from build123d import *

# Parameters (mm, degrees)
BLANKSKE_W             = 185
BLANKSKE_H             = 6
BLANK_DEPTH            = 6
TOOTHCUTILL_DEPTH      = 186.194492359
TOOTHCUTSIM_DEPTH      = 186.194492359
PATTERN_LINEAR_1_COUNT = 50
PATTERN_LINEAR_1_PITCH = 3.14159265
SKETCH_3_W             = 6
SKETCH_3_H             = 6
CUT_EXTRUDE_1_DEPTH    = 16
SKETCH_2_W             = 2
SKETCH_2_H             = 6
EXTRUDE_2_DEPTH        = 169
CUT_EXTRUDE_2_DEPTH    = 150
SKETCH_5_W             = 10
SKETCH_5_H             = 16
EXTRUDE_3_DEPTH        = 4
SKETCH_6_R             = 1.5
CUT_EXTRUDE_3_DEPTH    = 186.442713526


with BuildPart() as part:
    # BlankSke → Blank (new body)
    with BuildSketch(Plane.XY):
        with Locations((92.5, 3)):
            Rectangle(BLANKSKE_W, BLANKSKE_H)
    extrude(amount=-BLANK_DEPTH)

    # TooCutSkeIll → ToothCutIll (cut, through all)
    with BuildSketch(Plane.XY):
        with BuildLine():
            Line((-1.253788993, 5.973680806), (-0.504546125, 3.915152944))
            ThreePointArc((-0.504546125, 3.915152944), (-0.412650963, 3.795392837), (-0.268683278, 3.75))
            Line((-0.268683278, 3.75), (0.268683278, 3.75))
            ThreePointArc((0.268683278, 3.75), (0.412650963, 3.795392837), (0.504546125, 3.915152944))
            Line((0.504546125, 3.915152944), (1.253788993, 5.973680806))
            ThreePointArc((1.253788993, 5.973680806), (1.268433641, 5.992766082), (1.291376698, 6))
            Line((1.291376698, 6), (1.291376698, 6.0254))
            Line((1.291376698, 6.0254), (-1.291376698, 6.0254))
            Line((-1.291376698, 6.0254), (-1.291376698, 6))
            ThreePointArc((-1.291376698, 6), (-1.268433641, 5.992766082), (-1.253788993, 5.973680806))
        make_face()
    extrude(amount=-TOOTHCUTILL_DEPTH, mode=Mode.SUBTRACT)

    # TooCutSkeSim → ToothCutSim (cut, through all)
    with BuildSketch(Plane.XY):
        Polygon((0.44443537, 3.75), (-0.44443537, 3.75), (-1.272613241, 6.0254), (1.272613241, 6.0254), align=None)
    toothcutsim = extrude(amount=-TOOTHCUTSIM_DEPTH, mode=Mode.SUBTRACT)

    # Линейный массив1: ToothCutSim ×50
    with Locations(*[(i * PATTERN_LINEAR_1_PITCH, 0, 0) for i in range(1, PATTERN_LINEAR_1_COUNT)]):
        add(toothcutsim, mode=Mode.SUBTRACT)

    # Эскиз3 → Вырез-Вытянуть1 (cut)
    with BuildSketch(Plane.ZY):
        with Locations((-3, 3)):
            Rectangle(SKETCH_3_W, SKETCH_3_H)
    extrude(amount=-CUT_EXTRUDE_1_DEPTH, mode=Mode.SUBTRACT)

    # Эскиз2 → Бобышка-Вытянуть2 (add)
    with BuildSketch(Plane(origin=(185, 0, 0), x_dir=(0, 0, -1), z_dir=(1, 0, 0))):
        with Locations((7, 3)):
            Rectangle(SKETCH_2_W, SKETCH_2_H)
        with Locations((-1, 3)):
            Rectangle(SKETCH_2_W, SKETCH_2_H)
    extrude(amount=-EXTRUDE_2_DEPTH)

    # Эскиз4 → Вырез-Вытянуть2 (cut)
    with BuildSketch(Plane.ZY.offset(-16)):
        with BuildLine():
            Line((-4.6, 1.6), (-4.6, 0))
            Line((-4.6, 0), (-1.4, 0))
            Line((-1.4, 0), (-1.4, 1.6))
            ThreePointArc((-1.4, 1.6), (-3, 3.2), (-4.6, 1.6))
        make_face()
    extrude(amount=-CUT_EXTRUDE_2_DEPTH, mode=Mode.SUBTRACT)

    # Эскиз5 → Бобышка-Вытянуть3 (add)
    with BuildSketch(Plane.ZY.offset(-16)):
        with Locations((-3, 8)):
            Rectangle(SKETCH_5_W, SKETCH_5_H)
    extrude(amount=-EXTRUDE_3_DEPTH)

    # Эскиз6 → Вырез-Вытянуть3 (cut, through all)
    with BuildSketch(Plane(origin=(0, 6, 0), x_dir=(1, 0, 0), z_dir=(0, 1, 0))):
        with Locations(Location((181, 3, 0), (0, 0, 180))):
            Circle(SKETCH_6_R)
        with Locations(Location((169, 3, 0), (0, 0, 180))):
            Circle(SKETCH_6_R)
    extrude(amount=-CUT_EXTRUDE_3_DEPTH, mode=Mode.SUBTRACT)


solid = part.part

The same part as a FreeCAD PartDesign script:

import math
import FreeCAD as App
import Part
import Sketcher
from FreeCAD import Vector
Q = App.Units.Quantity

doc = App.newDocument("Part")
body = doc.addObject("PartDesign::Body", "Body")

sketch1 = doc.addObject("Sketcher::SketchObject", "Sketch")
body.addObject(sketch1)
sketch1.AttachmentSupport = (doc.XY_Plane, [""])
sketch1.MapMode = "FlatFace"
sketch1.addGeometry(Part.LineSegment(Vector(0, 6, 0), Vector(0, 0, 0)), False)
sketch1.addGeometry(Part.LineSegment(Vector(0, 0, 0), Vector(185, 0, 0)), False)
sketch1.addGeometry(Part.LineSegment(Vector(185, 0, 0), Vector(185, 6, 0)), False)
sketch1.addGeometry(Part.LineSegment(Vector(185, 6, 0), Vector(0, 6, 0)), False)
sketch1.addConstraint(Sketcher.Constraint("Coincident", 0, 2, 1, 1))
sketch1.addConstraint(Sketcher.Constraint("Coincident", 1, 2, 2, 1))
sketch1.addConstraint(Sketcher.Constraint("Coincident", 2, 2, 3, 1))
sketch1.addConstraint(Sketcher.Constraint("Coincident", 3, 2, 0, 1))
sketch1.addConstraint(Sketcher.Constraint("Vertical", 0))
sketch1.addConstraint(Sketcher.Constraint("Horizontal", 1))
sketch1.addConstraint(Sketcher.Constraint("Vertical", 2))
sketch1.addConstraint(Sketcher.Constraint("Horizontal", 3))
sketch1.addConstraint(Sketcher.Constraint("Coincident", 0, 2, -1, 1))
sketch1.addConstraint(Sketcher.Constraint("DistanceX", 1, 1, 1, 2, Q("185 mm")))
sketch1.addConstraint(Sketcher.Constraint("DistanceY", 0, 2, 0, 1, Q("6 mm")))
pad1 = doc.addObject("PartDesign::Pad", "Pad")
body.addObject(pad1)
pad1.Profile = sketch1
pad1.Length = 6
pad1.Reversed = True

sketch2 = doc.addObject("Sketcher::SketchObject", "Sketch001")
body.addObject(sketch2)
sketch2.AttachmentSupport = (doc.XY_Plane, [""])
sketch2.MapMode = "FlatFace"
sketch2.addGeometry(Part.LineSegment(Vector(-1.253789, 5.973681, 0), Vector(-0.504546, 3.915153, 0)), False)
sketch2.addGeometry(Part.ArcOfCircle(Part.Circle(Vector(-0.268683, 4.001, 0), Vector(0, 0, 1), 0.251), math.radians(-160), math.radians(-90)), False)
sketch2.addGeometry(Part.LineSegment(Vector(-0.268683, 3.75, 0), Vector(0.268683, 3.75, 0)), False)
sketch2.addGeometry(Part.ArcOfCircle(Part.Circle(Vector(0.268683, 4.001, 0), Vector(0, 0, 1), 0.251), math.radians(-90), math.radians(-20)), False)
sketch2.addGeometry(Part.LineSegment(Vector(0.504546, 3.915153, 0), Vector(1.253789, 5.973681, 0)), False)
sketch2.addGeometry(Part.ArcOfCircle(Part.Circle(Vector(1.291377, 5.96, 0), Vector(0, 0, 1), 0.04), math.radians(90), math.radians(159.999998)), False)
sketch2.addGeometry(Part.LineSegment(Vector(1.291377, 6, 0), Vector(1.291377, 6.0254, 0)), False)
sketch2.addGeometry(Part.LineSegment(Vector(1.291377, 6.0254, 0), Vector(-1.291377, 6.0254, 0)), False)
sketch2.addGeometry(Part.LineSegment(Vector(-1.291377, 6.0254, 0), Vector(-1.291377, 6, 0)), False)
sketch2.addGeometry(Part.ArcOfCircle(Part.Circle(Vector(-1.291377, 5.96, 0), Vector(0, 0, 1), 0.04), math.radians(20.000002), math.radians(90)), False)
sketch2.addConstraint(Sketcher.Constraint("Tangent", 0, 2, 1, 1))
sketch2.addConstraint(Sketcher.Constraint("Tangent", 1, 2, 2, 1))
sketch2.addConstraint(Sketcher.Constraint("Tangent", 2, 2, 3, 1))
sketch2.addConstraint(Sketcher.Constraint("Tangent", 3, 2, 4, 1))
sketch2.addConstraint(Sketcher.Constraint("Tangent", 4, 2, 5, 2))
sketch2.addConstraint(Sketcher.Constraint("Coincident", 5, 1, 6, 1))
sketch2.addConstraint(Sketcher.Constraint("Coincident", 6, 2, 7, 1))
sketch2.addConstraint(Sketcher.Constraint("Coincident", 7, 2, 8, 1))
sketch2.addConstraint(Sketcher.Constraint("Coincident", 8, 2, 9, 2))
sketch2.addConstraint(Sketcher.Constraint("Tangent", 9, 1, 0, 1))
sketch2.addConstraint(Sketcher.Constraint("Horizontal", 2))
sketch2.addConstraint(Sketcher.Constraint("Vertical", 6))
sketch2.addConstraint(Sketcher.Constraint("Horizontal", 7))
sketch2.addConstraint(Sketcher.Constraint("Vertical", 8))
sketch2.addConstraint(Sketcher.Constraint("Equal", 1, 3))
sketch2.addConstraint(Sketcher.Constraint("Equal", 5, 9))
sketch2.addConstraint(Sketcher.Constraint("Symmetric", 5, 3, 9, 3, -2))
sketch2.addConstraint(Sketcher.Constraint("Horizontal", 0, 2, 3, 2))
sketch2.addConstraint(Sketcher.Constraint("Vertical", 9, 3, 7, 2))
sketch2.addConstraint(Sketcher.Constraint("Angle", 0, Q("-70 deg")))
sketch2.addConstraint(Sketcher.Constraint("Radius", 5, Q("0.04 mm")))
sketch2.addConstraint(Sketcher.Constraint("DistanceY", -1, 1, 5, 1, Q("6 mm")))
sketch2.addConstraint(Sketcher.Constraint("Radius", 1, Q("0.251 mm")))
sketch2.addConstraint(Sketcher.Constraint("DistanceY", -1, 1, 1, 2, Q("3.75 mm")))
sketch2.addConstraint(Sketcher.Constraint("DistanceY", 6, 1, 6, 2, Q("0.0254 mm")))
sketch2.addConstraint(Sketcher.Constraint("DistanceX", 2, 1, 2, 2, Q("0.537367 mm")))
sketch2.addConstraint(Sketcher.Constraint("DistanceX", 7, 2, 7, 1, Q("2.582753 mm")))
pocket1 = doc.addObject("PartDesign::Pocket", "Pocket")
body.addObject(pocket1)
pocket1.Profile = sketch2
pocket1.Type = "ThroughAll"

sketch3 = doc.addObject("Sketcher::SketchObject", "Sketch002")
body.addObject(sketch3)
sketch3.AttachmentSupport = (doc.XY_Plane, [""])
sketch3.MapMode = "FlatFace"
sketch3.addGeometry(Part.LineSegment(Vector(-0.444435, 3.75, 0), Vector(0.444435, 3.75, 0)), False)
sketch3.addGeometry(Part.LineSegment(Vector(0.444435, 3.75, 0), Vector(1.272613, 6.0254, 0)), False)
sketch3.addGeometry(Part.LineSegment(Vector(1.272613, 6.0254, 0), Vector(-1.272613, 6.0254, 0)), False)
sketch3.addGeometry(Part.LineSegment(Vector(-1.272613, 6.0254, 0), Vector(-0.444435, 3.75, 0)), False)
sketch3.addConstraint(Sketcher.Constraint("Coincident", 0, 2, 1, 1))
sketch3.addConstraint(Sketcher.Constraint("Coincident", 1, 2, 2, 1))
sketch3.addConstraint(Sketcher.Constraint("Coincident", 2, 2, 3, 1))
sketch3.addConstraint(Sketcher.Constraint("Coincident", 3, 2, 0, 1))
sketch3.addConstraint(Sketcher.Constraint("Horizontal", 0))
sketch3.addConstraint(Sketcher.Constraint("Horizontal", 2))
sketch3.addConstraint(Sketcher.Constraint("Equal", 1, 3))
sketch3.addConstraint(Sketcher.Constraint("Angle", 1, Q("70 deg")))
sketch3.addConstraint(Sketcher.Constraint("DistanceY", -1, 1, 0, 2, Q("3.75 mm")))
sketch3.addConstraint(Sketcher.Constraint("DistanceX", 0, 1, 0, 2, Q("0.888871 mm")))
sketch3.addConstraint(Sketcher.Constraint("DistanceY", -1, 1, 1, 2, Q("6.0254 mm")))
sketch3.addConstraint(Sketcher.Constraint("DistanceX", -1, 1, 0, 2, Q("0.444435 mm")))
pocket2 = doc.addObject("PartDesign::Pocket", "Pocket001")
body.addObject(pocket2)
pocket2.Profile = sketch3
pocket2.Type = "ThroughAll"
doc.recompute()

linearpattern = doc.addObject("PartDesign::LinearPattern", "LinearPattern")
body.addObject(linearpattern)
linearpattern.Originals = [pocket2]
linearpattern.Direction = (doc.X_Axis, [""])
linearpattern.Mode = "offset"
linearpattern.Offset = 3.141593
linearpattern.Occurrences = 50
body.Tip = linearpattern

sketch4 = doc.addObject("Sketcher::SketchObject", "Sketch003")
body.addObject(sketch4)
sketch4.AttachmentSupport = (doc.YZ_Plane, [""])
sketch4.MapMode = "FlatFace"
sketch4.addGeometry(Part.LineSegment(Vector(6, -6, 0), Vector(0, -6, 0)), False)
sketch4.addGeometry(Part.LineSegment(Vector(0, -6, 0), Vector(0, 0, 0)), False)
sketch4.addGeometry(Part.LineSegment(Vector(0, 0, 0), Vector(6, 0, 0)), False)
sketch4.addGeometry(Part.LineSegment(Vector(6, 0, 0), Vector(6, -6, 0)), False)
sketch4.addConstraint(Sketcher.Constraint("Coincident", 0, 2, 1, 1))
sketch4.addConstraint(Sketcher.Constraint("Coincident", 1, 2, 2, 1))
sketch4.addConstraint(Sketcher.Constraint("Coincident", 2, 2, 3, 1))
sketch4.addConstraint(Sketcher.Constraint("Coincident", 3, 2, 0, 1))
sketch4.addConstraint(Sketcher.Constraint("Horizontal", 0))
sketch4.addConstraint(Sketcher.Constraint("Vertical", 1))
sketch4.addConstraint(Sketcher.Constraint("Horizontal", 2))
sketch4.addConstraint(Sketcher.Constraint("Vertical", 3))
sketch4.addConstraint(Sketcher.Constraint("Coincident", 1, 2, -1, 1))
sketch4.addConstraint(Sketcher.Constraint("Equal", 2, 1))
sketch4.addConstraint(Sketcher.Constraint("DistanceX", 0, 2, 0, 1, Q("6 mm")))
pocket3 = doc.addObject("PartDesign::Pocket", "Pocket002")
body.addObject(pocket3)
pocket3.Profile = sketch4
pocket3.Length = 16
pocket3.Reversed = True

sketch5 = doc.addObject("Sketcher::SketchObject", "Sketch004")
body.addObject(sketch5)
sketch5.AttachmentSupport = (doc.YZ_Plane, [""])
sketch5.MapMode = "FlatFace"
sketch5.AttachmentOffset = App.Placement(Vector(0, 0, 185), App.Rotation())
sketch5.addGeometry(Part.LineSegment(Vector(6, -6, 0), Vector(0, -6, 0)), False)
sketch5.addGeometry(Part.LineSegment(Vector(0, -6, 0), Vector(0, -8, 0)), False)
sketch5.addGeometry(Part.LineSegment(Vector(0, -8, 0), Vector(6, -8, 0)), False)
sketch5.addGeometry(Part.LineSegment(Vector(6, -8, 0), Vector(6, -6, 0)), False)
sketch5.addGeometry(Part.LineSegment(Vector(6, 2, 0), Vector(0, 2, 0)), False)
sketch5.addGeometry(Part.LineSegment(Vector(0, 2, 0), Vector(0, 0, 0)), False)
sketch5.addGeometry(Part.LineSegment(Vector(0, 0, 0), Vector(6, 0, 0)), False)
sketch5.addGeometry(Part.LineSegment(Vector(6, 0, 0), Vector(6, 2, 0)), False)
sketch5.addConstraint(Sketcher.Constraint("Coincident", 0, 2, 1, 1))
sketch5.addConstraint(Sketcher.Constraint("Coincident", 1, 2, 2, 1))
sketch5.addConstraint(Sketcher.Constraint("Coincident", 2, 2, 3, 1))
sketch5.addConstraint(Sketcher.Constraint("Coincident", 3, 2, 0, 1))
sketch5.addConstraint(Sketcher.Constraint("Coincident", 4, 2, 5, 1))
sketch5.addConstraint(Sketcher.Constraint("Coincident", 5, 2, 6, 1))
sketch5.addConstraint(Sketcher.Constraint("Coincident", 6, 2, 7, 1))
sketch5.addConstraint(Sketcher.Constraint("Coincident", 7, 2, 4, 1))
sketch5.addConstraint(Sketcher.Constraint("Horizontal", 0))
sketch5.addConstraint(Sketcher.Constraint("Vertical", 1))
sketch5.addConstraint(Sketcher.Constraint("Horizontal", 2))
sketch5.addConstraint(Sketcher.Constraint("Vertical", 3))
sketch5.addConstraint(Sketcher.Constraint("Horizontal", 4))
sketch5.addConstraint(Sketcher.Constraint("Vertical", 5))
sketch5.addConstraint(Sketcher.Constraint("Horizontal", 6))
sketch5.addConstraint(Sketcher.Constraint("Vertical", 7))
sketch5.addConstraint(Sketcher.Constraint("Coincident", 5, 2, -1, 1))
sketch5.addConstraint(Sketcher.Constraint("PointOnObject", 0, 2, -2))
sketch5.addConstraint(Sketcher.Constraint("Vertical", 3, 2, 6, 2))
sketch5.addConstraint(Sketcher.Constraint("Equal", 3, 5))
sketch5.addConstraint(Sketcher.Constraint("DistanceX", 0, 2, 0, 1, Q("6 mm")))
sketch5.addConstraint(Sketcher.Constraint("DistanceY", 1, 2, 1, 1, Q("2 mm")))
sketch5.addConstraint(Sketcher.Constraint("DistanceY", 0, 2, -1, 1, Q("6 mm")))
pad2 = doc.addObject("PartDesign::Pad", "Pad001")
body.addObject(pad2)
pad2.Profile = sketch5
pad2.Length = 169
pad2.Reversed = True

sketch6 = doc.addObject("Sketcher::SketchObject", "Sketch005")
body.addObject(sketch6)
sketch6.AttachmentSupport = (doc.YZ_Plane, [""])
sketch6.MapMode = "FlatFace"
sketch6.AttachmentOffset = App.Placement(Vector(0, 0, 16), App.Rotation())
sketch6.addGeometry(Part.LineSegment(Vector(1.6, -4.6, 0), Vector(0, -4.6, 0)), False)
sketch6.addGeometry(Part.LineSegment(Vector(0, -4.6, 0), Vector(0, -1.4, 0)), False)
sketch6.addGeometry(Part.LineSegment(Vector(0, -1.4, 0), Vector(1.6, -1.4, 0)), False)
sketch6.addGeometry(Part.ArcOfCircle(Part.Circle(Vector(1.6, -3, 0), Vector(0, 0, 1), 1.6), math.radians(-90), math.radians(90)), False)
sketch6.addConstraint(Sketcher.Constraint("Coincident", 0, 2, 1, 1))
sketch6.addConstraint(Sketcher.Constraint("Coincident", 1, 2, 2, 1))
sketch6.addConstraint(Sketcher.Constraint("Tangent", 2, 2, 3, 2))
sketch6.addConstraint(Sketcher.Constraint("Tangent", 3, 1, 0, 1))
sketch6.addConstraint(Sketcher.Constraint("Horizontal", 0))
sketch6.addConstraint(Sketcher.Constraint("Vertical", 1))
sketch6.addConstraint(Sketcher.Constraint("Horizontal", 2))
sketch6.addConstraint(Sketcher.Constraint("PointOnObject", 0, 2, -2))
sketch6.addConstraint(Sketcher.Constraint("Radius", 3, Q("1.6 mm")))
sketch6.addConstraint(Sketcher.Constraint("DistanceX", 0, 2, 0, 1, Q("1.6 mm")))
sketch6.addConstraint(Sketcher.Constraint("DistanceY", 3, 3, -1, 1, Q("3 mm")))
pocket4 = doc.addObject("PartDesign::Pocket", "Pocket003")
body.addObject(pocket4)
pocket4.Profile = sketch6
pocket4.Length = 150
pocket4.Reversed = True

sketch7 = doc.addObject("Sketcher::SketchObject", "Sketch006")
body.addObject(sketch7)
sketch7.AttachmentSupport = (doc.YZ_Plane, [""])
sketch7.MapMode = "FlatFace"
sketch7.AttachmentOffset = App.Placement(Vector(0, 0, 16), App.Rotation())
sketch7.addGeometry(Part.LineSegment(Vector(16, -8, 0), Vector(0, -8, 0)), False)
sketch7.addGeometry(Part.LineSegment(Vector(0, -8, 0), Vector(0, 2, 0)), False)
sketch7.addGeometry(Part.LineSegment(Vector(0, 2, 0), Vector(16, 2, 0)), False)
sketch7.addGeometry(Part.LineSegment(Vector(16, 2, 0), Vector(16, -8, 0)), False)
sketch7.addConstraint(Sketcher.Constraint("Coincident", 0, 2, 1, 1))
sketch7.addConstraint(Sketcher.Constraint("Coincident", 1, 2, 2, 1))
sketch7.addConstraint(Sketcher.Constraint("Coincident", 2, 2, 3, 1))
sketch7.addConstraint(Sketcher.Constraint("Coincident", 3, 2, 0, 1))
sketch7.addConstraint(Sketcher.Constraint("Horizontal", 0))
sketch7.addConstraint(Sketcher.Constraint("Vertical", 1))
sketch7.addConstraint(Sketcher.Constraint("Horizontal", 2))
sketch7.addConstraint(Sketcher.Constraint("Vertical", 3))
sketch7.addConstraint(Sketcher.Constraint("PointOnObject", 0, 2, -2))
sketch7.addConstraint(Sketcher.Constraint("DistanceX", 0, 2, 0, 1, Q("16 mm")))
sketch7.addConstraint(Sketcher.Constraint("DistanceY", 1, 1, 1, 2, Q("10 mm")))
sketch7.addConstraint(Sketcher.Constraint("DistanceY", 0, 2, -1, 1, Q("8 mm")))
pad3 = doc.addObject("PartDesign::Pad", "Pad002")
body.addObject(pad3)
pad3.Profile = sketch7
pad3.Length = 4

sketch8 = doc.addObject("Sketcher::SketchObject", "Sketch007")
body.addObject(sketch8)
sketch8.AttachmentSupport = (doc.XZ_Plane, [""])
sketch8.MapMode = "FlatFace"
sketch8.AttachmentOffset = App.Placement(Vector(0, 0, -6), App.Rotation())
sketch8.addGeometry(Part.Circle(Vector(181, -3, 0), Vector(0, 0, 1), 1.5), False)
sketch8.addGeometry(Part.Circle(Vector(169, -3, 0), Vector(0, 0, 1), 1.5), False)
sketch8.addConstraint(Sketcher.Constraint("Equal", 0, 1))
sketch8.addConstraint(Sketcher.Constraint("Horizontal", 0, 3, 1, 3))
sketch8.addConstraint(Sketcher.Constraint("Diameter", 0, Q("3 mm")))
sketch8.addConstraint(Sketcher.Constraint("DistanceX", -1, 1, 0, 3, Q("181 mm")))
sketch8.addConstraint(Sketcher.Constraint("DistanceY", 0, 3, -1, 1, Q("3 mm")))
sketch8.addConstraint(Sketcher.Constraint("DistanceX", -1, 1, 1, 3, Q("169 mm")))
pocket5 = doc.addObject("PartDesign::Pocket", "Pocket004")
body.addObject(pocket5)
pocket5.Profile = sketch8
pocket5.Type = "ThroughAll"
pocket5.Reversed = True

doc.recompute()
